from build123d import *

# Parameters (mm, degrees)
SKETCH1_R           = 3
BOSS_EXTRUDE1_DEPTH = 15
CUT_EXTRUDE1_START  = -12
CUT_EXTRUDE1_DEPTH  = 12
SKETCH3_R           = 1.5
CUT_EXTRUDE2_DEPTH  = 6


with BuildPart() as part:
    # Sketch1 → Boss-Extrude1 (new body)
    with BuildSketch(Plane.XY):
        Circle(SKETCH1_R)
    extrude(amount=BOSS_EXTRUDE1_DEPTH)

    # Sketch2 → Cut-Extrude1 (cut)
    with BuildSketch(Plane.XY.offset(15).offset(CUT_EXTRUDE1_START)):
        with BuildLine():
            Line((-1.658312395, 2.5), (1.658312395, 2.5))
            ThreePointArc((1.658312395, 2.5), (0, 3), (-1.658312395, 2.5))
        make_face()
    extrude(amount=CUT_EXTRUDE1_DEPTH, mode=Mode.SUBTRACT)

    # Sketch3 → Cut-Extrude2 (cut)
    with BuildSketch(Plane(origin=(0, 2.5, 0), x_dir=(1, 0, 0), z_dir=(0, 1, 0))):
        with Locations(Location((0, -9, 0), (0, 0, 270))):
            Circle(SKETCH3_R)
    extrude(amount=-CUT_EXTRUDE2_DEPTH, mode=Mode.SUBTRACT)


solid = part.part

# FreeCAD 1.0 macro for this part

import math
import FreeCAD as App
import Part
import Sketcher

doc = App.newDocument("Part")
body = doc.addObject("PartDesign::Body", "Body")

sketch1 = doc.addObject("Sketcher::SketchObject", "Sketch")
body.addObject(sketch1)
sketch1.AttachmentSupport = (doc.XY_Plane, [""])
sketch1.MapMode = "FlatFace"
sketch1.addGeometry(Part.Circle(App.Vector(0, 0, 0), App.Vector(0, 0, 1), 3), False)
sketch1.addConstraint(Sketcher.Constraint("Coincident", 0, 3, -1, 1))
sketch1.addConstraint(Sketcher.Constraint("Diameter", 0, 6.0))
pad1 = doc.addObject("PartDesign::Pad", "Pad")
body.addObject(pad1)
pad1.Profile = sketch1
pad1.Length = 15

sketch2 = doc.addObject("Sketcher::SketchObject", "Sketch001")
body.addObject(sketch2)
sketch2.AttachmentSupport = (doc.XY_Plane, [""])
sketch2.MapMode = "FlatFace"
sketch2.AttachmentOffset = App.Placement(App.Vector(0, 0, 3), App.Rotation())
sketch2.addGeometry(Part.LineSegment(App.Vector(-1.7, 2.5, 0), App.Vector(1.7, 2.5, 0)), False)
sketch2.addGeometry(Part.ArcOfCircle(Part.Circle(App.Vector(0, 0, 0), App.Vector(0, 0, 1), 3), math.radians(56), math.radians(124)), False)
sketch2.addConstraint(Sketcher.Constraint("Coincident", 0, 1, 1, 2))
sketch2.addConstraint(Sketcher.Constraint("Coincident", 1, 1, 0, 2))
sketch2.addConstraint(Sketcher.Constraint("Horizontal", 0))
sketch2.addConstraint(Sketcher.Constraint("Coincident", 1, 3, -1, 1))
sketch2.addConstraint(Sketcher.Constraint("Radius", 1, 3.0))
sketch2.addConstraint(Sketcher.Constraint("DistanceY", -1, 1, 0, 1, 2.5))
pocket1 = doc.addObject("PartDesign::Pocket", "Pocket")
body.addObject(pocket1)
pocket1.Profile = sketch2
pocket1.Length = 12
pocket1.Reversed = True

sketch3 = doc.addObject("Sketcher::SketchObject", "Sketch002")
body.addObject(sketch3)
sketch3.AttachmentSupport = (doc.XZ_Plane, [""])
sketch3.MapMode = "FlatFace"
sketch3.AttachmentOffset = App.Placement(App.Vector(0, 0, -2.5), App.Rotation())
sketch3.addGeometry(Part.Circle(App.Vector(0, 9, 0), App.Vector(0, 0, 1), 1.5), False)
sketch3.addConstraint(Sketcher.Constraint("PointOnObject", 0, 3, -2))
sketch3.addConstraint(Sketcher.Constraint("Diameter", 0, 3.0))
sketch3.addConstraint(Sketcher.Constraint("DistanceY", -1, 1, 0, 3, 9.0))
pocket2 = doc.addObject("PartDesign::Pocket", "Pocket001")
body.addObject(pocket2)
pocket2.Profile = sketch3
pocket2.Length = 6
pocket2.Reversed = True

doc.recompute()
